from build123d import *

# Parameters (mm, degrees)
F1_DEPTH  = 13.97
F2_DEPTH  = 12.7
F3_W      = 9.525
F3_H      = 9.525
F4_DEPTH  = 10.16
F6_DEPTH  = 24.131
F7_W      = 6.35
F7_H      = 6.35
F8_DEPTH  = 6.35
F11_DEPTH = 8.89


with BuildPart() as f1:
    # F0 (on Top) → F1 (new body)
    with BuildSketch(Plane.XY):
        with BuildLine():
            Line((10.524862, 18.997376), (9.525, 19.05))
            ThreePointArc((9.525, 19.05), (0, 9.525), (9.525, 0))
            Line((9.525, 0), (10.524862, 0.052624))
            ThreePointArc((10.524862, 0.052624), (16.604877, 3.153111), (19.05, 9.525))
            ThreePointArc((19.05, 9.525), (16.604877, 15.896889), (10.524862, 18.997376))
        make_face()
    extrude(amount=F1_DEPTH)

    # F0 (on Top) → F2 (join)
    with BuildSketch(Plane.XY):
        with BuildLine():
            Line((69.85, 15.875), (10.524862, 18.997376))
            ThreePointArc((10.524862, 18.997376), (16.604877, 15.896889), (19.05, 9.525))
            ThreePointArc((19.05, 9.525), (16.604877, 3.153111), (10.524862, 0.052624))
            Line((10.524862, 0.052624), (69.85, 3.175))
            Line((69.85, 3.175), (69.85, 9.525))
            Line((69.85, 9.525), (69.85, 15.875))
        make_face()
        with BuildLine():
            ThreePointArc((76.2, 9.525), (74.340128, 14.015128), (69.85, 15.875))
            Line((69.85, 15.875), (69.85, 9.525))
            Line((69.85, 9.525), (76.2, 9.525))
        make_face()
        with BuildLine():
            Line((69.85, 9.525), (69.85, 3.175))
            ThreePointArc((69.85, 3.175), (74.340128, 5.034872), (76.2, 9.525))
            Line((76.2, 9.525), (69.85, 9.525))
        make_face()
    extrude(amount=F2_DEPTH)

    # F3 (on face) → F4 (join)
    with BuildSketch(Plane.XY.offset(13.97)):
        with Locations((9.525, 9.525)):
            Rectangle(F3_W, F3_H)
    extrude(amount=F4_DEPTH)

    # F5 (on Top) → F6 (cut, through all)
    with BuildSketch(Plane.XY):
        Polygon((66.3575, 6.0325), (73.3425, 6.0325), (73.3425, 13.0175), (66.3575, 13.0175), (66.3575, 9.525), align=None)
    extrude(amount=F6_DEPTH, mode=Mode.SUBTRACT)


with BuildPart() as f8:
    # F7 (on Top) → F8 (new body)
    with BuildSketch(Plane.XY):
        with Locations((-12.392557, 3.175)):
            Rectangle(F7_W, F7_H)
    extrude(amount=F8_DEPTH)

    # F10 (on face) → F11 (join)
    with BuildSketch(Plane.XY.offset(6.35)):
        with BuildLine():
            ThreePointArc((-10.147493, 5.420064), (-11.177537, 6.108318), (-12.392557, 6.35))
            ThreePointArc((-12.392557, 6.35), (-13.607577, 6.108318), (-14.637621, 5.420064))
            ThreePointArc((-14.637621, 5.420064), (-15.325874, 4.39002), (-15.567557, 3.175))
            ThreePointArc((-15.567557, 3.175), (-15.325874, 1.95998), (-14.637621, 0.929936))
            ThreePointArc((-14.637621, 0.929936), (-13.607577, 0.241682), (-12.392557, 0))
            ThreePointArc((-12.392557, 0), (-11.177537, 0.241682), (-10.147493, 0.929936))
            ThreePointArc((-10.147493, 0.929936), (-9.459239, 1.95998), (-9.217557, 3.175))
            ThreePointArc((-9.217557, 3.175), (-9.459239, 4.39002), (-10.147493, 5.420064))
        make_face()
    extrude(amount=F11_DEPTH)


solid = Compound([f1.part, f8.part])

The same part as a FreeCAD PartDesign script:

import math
import FreeCAD as App
import Part
import Sketcher

V = App.Vector
Q = App.Units.Quantity


def add_polygon(sketch, points):
    """Adds a closed chain of lines whose ends are joined by coincident constraints."""
    first, n = sketch.GeometryCount, len(points)
    for a, b in zip(points, points[1:] + points[:1]):
        sketch.addGeometry(Part.LineSegment(App.Vector(*a, 0), App.Vector(*b, 0)), False)
    for i in range(n):
        sketch.addConstraint(Sketcher.Constraint("Coincident", first + i, 2, first + (i + 1) % n, 1))

doc = App.newDocument("Part")
body = doc.addObject("PartDesign::Body", "Body")

sketch1 = body.newObject("Sketcher::SketchObject", "Sketch")
sketch1.AttachmentSupport = (doc.getObject("XY_Plane"), [""])
sketch1.MapMode = "FlatFace"
sketch1.addGeometry(Part.LineSegment(V(10.524862, 18.997376, 0), V(9.525, 19.05, 0)), False)
sketch1.addGeometry(Part.ArcOfCircle(Part.Circle(V(9.525, 9.525, 0), V(0, 0, 1), 9.525), math.radians(90), math.radians(270)), False)
sketch1.addGeometry(Part.LineSegment(V(9.525, 0, 0), V(10.524862, 0.052624, 0)), False)
sketch1.addGeometry(Part.ArcOfCircle(Part.Circle(V(9.525, 9.525, 0), V(0, 0, 1), 9.525), math.radians(-83.974423), math.radians(0.000001)), False)
sketch1.addGeometry(Part.ArcOfCircle(Part.Circle(V(9.525, 9.525, 0), V(0, 0, 1), 9.525), math.radians(-0.000001), math.radians(83.974423)), False)
sketch1.addConstraint(Sketcher.Constraint("Coincident", 0, 2, 1, 1))
sketch1.addConstraint(Sketcher.Constraint("Coincident", 1, 2, 2, 1))
sketch1.addConstraint(Sketcher.Constraint("Coincident", 2, 2, 3, 1))
sketch1.addConstraint(Sketcher.Constraint("Tangent", 3, 2, 4, 1))
sketch1.addConstraint(Sketcher.Constraint("Coincident", 4, 2, 0, 1))
sketch1.addConstraint(Sketcher.Constraint("Coincident", 3, 3, 1, 3))
sketch1.addConstraint(Sketcher.Constraint("Equal", 1, 3))
sketch1.addConstraint(Sketcher.Constraint("Equal", 3, 4))
sketch1.addConstraint(Sketcher.Constraint("PointOnObject", 1, 2, -1))
sketch1.addConstraint(Sketcher.Constraint("Horizontal", 4, 3, 3, 2))
sketch1.addConstraint(Sketcher.Constraint("Vertical", 4, 3, 0, 2))
sketch1.addConstraint(Sketcher.Constraint("Vertical", 0, 2, 1, 2))
sketch1.addConstraint(Sketcher.Constraint("Vertical", 2, 2, 4, 2))
sketch1.addConstraint(Sketcher.Constraint("Radius", 1, Q("0.375 in")))
sketch1.addConstraint(Sketcher.Constraint("DistanceX", -1, 1, 3, 2, Q("0.75 in")))
sketch1.addConstraint(Sketcher.Constraint("Distance", 0, Q("1.001246 mm")))
pad1 = body.newObject("PartDesign::Pad", "Pad")
pad1.Profile = sketch1
pad1.Length = Q("0.55 in")

sketch2 = body.newObject("Sketcher::SketchObject", "Sketch001")
sketch2.AttachmentSupport = (doc.getObject("XY_Plane"), [""])
sketch2.MapMode = "FlatFace"
sketch2.addGeometry(Part.LineSegment(V(69.85, 15.875, 0), V(10.524862, 18.997376, 0)), False)
sketch2.addGeometry(Part.ArcOfCircle(Part.Circle(V(9.525, 9.525, 0), V(0, 0, 1), 9.525), math.radians(-0.000001), math.radians(83.974423)), False)
sketch2.addGeometry(Part.ArcOfCircle(Part.Circle(V(9.525, 9.525, 0), V(0, 0, 1), 9.525), math.radians(-83.974423), math.radians(0.000001)), False)
sketch2.addGeometry(Part.LineSegment(V(10.524862, 0.052624, 0), V(69.85, 3.175, 0)), False)
sketch2.addGeometry(Part.ArcOfCircle(Part.Circle(V(69.85, 9.525, 0), V(0, 0, 1), 6.35), math.radians(-89.999998), math.radians(-0.000002)), False)
sketch2.addGeometry(Part.ArcOfCircle(Part.Circle(V(69.85, 9.525, 0), V(0, 0, 1), 6.35), math.radians(0.000002), math.radians(89.999998)), False)
sketch2.addConstraint(Sketcher.Constraint("Coincident", 0, 2, 1, 2))
sketch2.addConstraint(Sketcher.Constraint("Tangent", 1, 1, 2, 2))
sketch2.addConstraint(Sketcher.Constraint("Coincident", 2, 1, 3, 1))
sketch2.addConstraint(Sketcher.Constraint("Coincident", 3, 2, 4, 1))
sketch2.addConstraint(Sketcher.Constraint("Tangent", 4, 2, 5, 1))
sketch2.addConstraint(Sketcher.Constraint("Coincident", 5, 2, 0, 1))
sketch2.addConstraint(Sketcher.Constraint("Equal", 1, 2))
sketch2.addConstraint(Sketcher.Constraint("Equal", 4, 5))
sketch2.addConstraint(Sketcher.Constraint("Horizontal", 2, 3, 4, 3))
sketch2.addConstraint(Sketcher.Constraint("Horizontal", 5, 3, 1, 1))
sketch2.addConstraint(Sketcher.Constraint("Horizontal", 1, 1, 4, 2))
sketch2.addConstraint(Sketcher.Constraint("Vertical", 0, 2, 2, 1))
sketch2.addConstraint(Sketcher.Constraint("Vertical", 5, 3, 3, 2))
sketch2.addConstraint(Sketcher.Constraint("Vertical", 3, 2, 5, 2))
sketch2.addConstraint(Sketcher.Constraint("Radius", 4, Q("0.25 in")))
sketch2.addConstraint(Sketcher.Constraint("DistanceX", -1, 1, 4, 2, Q("3 in")))
sketch2.addConstraint(Sketcher.Constraint("Radius", 1, Q("0.375 in")))
sketch2.addConstraint(Sketcher.Constraint("DistanceX", 1, 1, 4, 3, Q("2 in")))
sketch2.addConstraint(Sketcher.Constraint("DistanceY", -1, 1, 1, 3, Q("0.375 in")))
sketch2.addConstraint(Sketcher.Constraint("Distance", 0, Q("59.407249 mm")))
pad2 = body.newObject("PartDesign::Pad", "Pad001")
pad2.Profile = sketch2
pad2.Length = Q("0.5 in")

sketch3 = body.newObject("Sketcher::SketchObject", "Sketch002")
sketch3.AttachmentSupport = (doc.getObject("XY_Plane"), [""])
sketch3.MapMode = "FlatFace"
sketch3.AttachmentOffset = App.Placement(V(0, 0, 0.55 * 25.4), App.Rotation())
add_polygon(sketch3, [(4.7625, 14.2875), (4.7625, 4.7625), (14.2875, 4.7625), (14.2875, 14.2875)])
sketch3.addConstraint(Sketcher.Constraint("Vertical", 0))
sketch3.addConstraint(Sketcher.Constraint("Horizontal", 1))
sketch3.addConstraint(Sketcher.Constraint("Vertical", 2))
sketch3.addConstraint(Sketcher.Constraint("Horizontal", 3))
sketch3.addConstraint(Sketcher.Constraint("Equal", 3, 0))
sketch3.addConstraint(Sketcher.Constraint("DistanceX", 1, 1, 1, 2, Q("0.375 in")))
sketch3.addConstraint(Sketcher.Constraint("DistanceX", -1, 1, 0, 2, Q("0.1875 in")))
sketch3.addConstraint(Sketcher.Constraint("DistanceY", -1, 1, 0, 2, Q("0.1875 in")))
pad3 = body.newObject("PartDesign::Pad", "Pad002")
pad3.Profile = sketch3
pad3.Length = Q("0.4 in")

sketch4 = body.newObject("Sketcher::SketchObject", "Sketch003")
sketch4.AttachmentSupport = (doc.getObject("XY_Plane"), [""])
sketch4.MapMode = "FlatFace"
add_polygon(sketch4, [(66.3575, 6.0325), (73.3425, 6.0325), (73.3425, 13.0175), (66.3575, 13.0175)])
sketch4.addConstraint(Sketcher.Constraint("Horizontal", 0))
sketch4.addConstraint(Sketcher.Constraint("Vertical", 1))
sketch4.addConstraint(Sketcher.Constraint("Horizontal", 2))
sketch4.addConstraint(Sketcher.Constraint("Vertical", 3))
sketch4.addConstraint(Sketcher.Constraint("Equal", 2, 1))
sketch4.addConstraint(Sketcher.Constraint("DistanceX", 0, 1, 0, 2, Q("0.275 in")))
sketch4.addConstraint(Sketcher.Constraint("DistanceX", -1, 1, 0, 2, Q("2.8875 in")))
sketch4.addConstraint(Sketcher.Constraint("DistanceY", -1, 1, 0, 2, Q("0.2375 in")))
pocket1 = body.newObject("PartDesign::Pocket", "Pocket")
pocket1.Profile = sketch4
pocket1.Type = "ThroughAll"
pocket1.Reversed = True
body2 = doc.addObject("PartDesign::Body", "Body001")

sketch5 = body2.newObject("Sketcher::SketchObject", "Sketch004")
sketch5.AttachmentSupport = (doc.getObject("XY_Plane001"), [""])
sketch5.MapMode = "FlatFace"
add_polygon(sketch5, [(-15.567557, 6.35), (-15.567557, 0), (-9.217557, 0), (-9.217557, 6.35)])
sketch5.addConstraint(Sketcher.Constraint("Vertical", 0))
sketch5.addConstraint(Sketcher.Constraint("Horizontal", 1))
sketch5.addConstraint(Sketcher.Constraint("Vertical", 2))
sketch5.addConstraint(Sketcher.Constraint("Horizontal", 3))
sketch5.addConstraint(Sketcher.Constraint("PointOnObject", 0, 2, -1))
sketch5.addConstraint(Sketcher.Constraint("Equal", 3, 0))
sketch5.addConstraint(Sketcher.Constraint("DistanceX", 1, 1, 1, 2, Q("0.25 in")))
sketch5.addConstraint(Sketcher.Constraint("DistanceX", 0, 2, -1, 1, Q("15.567557 mm")))
pad4 = body2.newObject("PartDesign::Pad", "Pad003")
pad4.Profile = sketch5
pad4.Length = Q("0.25 in")

sketch6 = body2.newObject("Sketcher::SketchObject", "Sketch005")
sketch6.AttachmentSupport = (doc.getObject("XY_Plane001"), [""])
sketch6.MapMode = "FlatFace"
sketch6.AttachmentOffset = App.Placement(V(0, 0, 0.25 * 25.4), App.Rotation())
sketch6.addGeometry(Part.ArcOfCircle(Part.Circle(V(-12.392554, 3.175006, 0), V(0, 0, 1), 3.174994), math.radians(44.999953), math.radians(90.000045)), False)
sketch6.addGeometry(Part.ArcOfCircle(Part.Circle(V(-12.39256, 3.175006, 0), V(0, 0, 1), 3.174994), math.radians(89.999955), math.radians(135.000047)), False)
sketch6.addGeometry(Part.ArcOfCircle(Part.Circle(V(-12.392552, 3.174998, 0), V(0, 0, 1), 3.175005), math.radians(135.000037), math.radians(179.999961)), False)
sketch6.addGeometry(Part.ArcOfCircle(Part.Circle(V(-12.392552, 3.175002, 0), V(0, 0, 1), 3.175005), math.radians(-179.999961), math.radians(-135.000037)), False)
sketch6.addGeometry(Part.ArcOfCircle(Part.Circle(V(-12.39256, 3.174994, 0), V(0, 0, 1), 3.174994), math.radians(-135.000047), math.radians(-89.999955)), False)
sketch6.addGeometry(Part.ArcOfCircle(Part.Circle(V(-12.392554, 3.174994, 0), V(0, 0, 1), 3.174994), math.radians(-90.000045), math.radians(-44.999953)), False)
sketch6.addGeometry(Part.ArcOfCircle(Part.Circle(V(-12.392551, 3.174997, 0), V(0, 0, 1), 3.174994), math.radians(-45.000047), math.radians(0.000045)), False)
sketch6.addGeometry(Part.ArcOfCircle(Part.Circle(V(-12.392551, 3.175003, 0), V(0, 0, 1), 3.174994), math.radians(-0.000045), math.radians(45.000047)), False)
sketch6.addConstraint(Sketcher.Constraint("Tangent", 0, 2, 1, 1))
sketch6.addConstraint(Sketcher.Constraint("Tangent", 1, 2, 2, 1))
sketch6.addConstraint(Sketcher.Constraint("Tangent", 2, 2, 3, 1))
sketch6.addConstraint(Sketcher.Constraint("Tangent", 3, 2, 4, 1))
sketch6.addConstraint(Sketcher.Constraint("Tangent", 4, 2, 5, 1))
sketch6.addConstraint(Sketcher.Constraint("Tangent", 5, 2, 6, 1))
sketch6.addConstraint(Sketcher.Constraint("Tangent", 6, 2, 7, 1))
sketch6.addConstraint(Sketcher.Constraint("Tangent", 7, 2, 0, 1))
sketch6.addConstraint(Sketcher.Constraint("Coincident", 2, 3, 0, 3))
sketch6.addConstraint(Sketcher.Constraint("Coincident", 4, 3, 2, 3))
sketch6.addConstraint(Sketcher.Constraint("Equal", 4, 5))
sketch6.addConstraint(Sketcher.Constraint("PointOnObject", 4, 2, -1))
sketch6.addConstraint(Sketcher.Constraint("Horizontal", 3, 2, 5, 2))
sketch6.addConstraint(Sketcher.Constraint("Horizontal", 2, 2, 6, 2))
sketch6.addConstraint(Sketcher.Constraint("Horizontal", 1, 2, 7, 2))
sketch6.addConstraint(Sketcher.Constraint("Vertical", 1, 2, 3, 2))
sketch6.addConstraint(Sketcher.Constraint("Vertical", 0, 2, 4, 2))
sketch6.addConstraint(Sketcher.Constraint("Radius", 2, Q("0.1250002 in")))
sketch6.addConstraint(Sketcher.Constraint("DistanceY", -1, 1, 2, 2, Q("0.125 in")))
sketch6.addConstraint(Sketcher.Constraint("DistanceX", 1, 3, -1, 1, Q("12.39256 mm")))
sketch6.addConstraint(Sketcher.Constraint("DistanceX", 1, 2, -1, 1, Q("14.637621 mm")))
sketch6.addConstraint(Sketcher.Constraint("DistanceX", 0, 2, -1, 1, Q("12.392557 mm")))
pad5 = body2.newObject("PartDesign::Pad", "Pad004")
pad5.Profile = sketch6
pad5.Length = Q("0.35 in")

doc.recompute()
